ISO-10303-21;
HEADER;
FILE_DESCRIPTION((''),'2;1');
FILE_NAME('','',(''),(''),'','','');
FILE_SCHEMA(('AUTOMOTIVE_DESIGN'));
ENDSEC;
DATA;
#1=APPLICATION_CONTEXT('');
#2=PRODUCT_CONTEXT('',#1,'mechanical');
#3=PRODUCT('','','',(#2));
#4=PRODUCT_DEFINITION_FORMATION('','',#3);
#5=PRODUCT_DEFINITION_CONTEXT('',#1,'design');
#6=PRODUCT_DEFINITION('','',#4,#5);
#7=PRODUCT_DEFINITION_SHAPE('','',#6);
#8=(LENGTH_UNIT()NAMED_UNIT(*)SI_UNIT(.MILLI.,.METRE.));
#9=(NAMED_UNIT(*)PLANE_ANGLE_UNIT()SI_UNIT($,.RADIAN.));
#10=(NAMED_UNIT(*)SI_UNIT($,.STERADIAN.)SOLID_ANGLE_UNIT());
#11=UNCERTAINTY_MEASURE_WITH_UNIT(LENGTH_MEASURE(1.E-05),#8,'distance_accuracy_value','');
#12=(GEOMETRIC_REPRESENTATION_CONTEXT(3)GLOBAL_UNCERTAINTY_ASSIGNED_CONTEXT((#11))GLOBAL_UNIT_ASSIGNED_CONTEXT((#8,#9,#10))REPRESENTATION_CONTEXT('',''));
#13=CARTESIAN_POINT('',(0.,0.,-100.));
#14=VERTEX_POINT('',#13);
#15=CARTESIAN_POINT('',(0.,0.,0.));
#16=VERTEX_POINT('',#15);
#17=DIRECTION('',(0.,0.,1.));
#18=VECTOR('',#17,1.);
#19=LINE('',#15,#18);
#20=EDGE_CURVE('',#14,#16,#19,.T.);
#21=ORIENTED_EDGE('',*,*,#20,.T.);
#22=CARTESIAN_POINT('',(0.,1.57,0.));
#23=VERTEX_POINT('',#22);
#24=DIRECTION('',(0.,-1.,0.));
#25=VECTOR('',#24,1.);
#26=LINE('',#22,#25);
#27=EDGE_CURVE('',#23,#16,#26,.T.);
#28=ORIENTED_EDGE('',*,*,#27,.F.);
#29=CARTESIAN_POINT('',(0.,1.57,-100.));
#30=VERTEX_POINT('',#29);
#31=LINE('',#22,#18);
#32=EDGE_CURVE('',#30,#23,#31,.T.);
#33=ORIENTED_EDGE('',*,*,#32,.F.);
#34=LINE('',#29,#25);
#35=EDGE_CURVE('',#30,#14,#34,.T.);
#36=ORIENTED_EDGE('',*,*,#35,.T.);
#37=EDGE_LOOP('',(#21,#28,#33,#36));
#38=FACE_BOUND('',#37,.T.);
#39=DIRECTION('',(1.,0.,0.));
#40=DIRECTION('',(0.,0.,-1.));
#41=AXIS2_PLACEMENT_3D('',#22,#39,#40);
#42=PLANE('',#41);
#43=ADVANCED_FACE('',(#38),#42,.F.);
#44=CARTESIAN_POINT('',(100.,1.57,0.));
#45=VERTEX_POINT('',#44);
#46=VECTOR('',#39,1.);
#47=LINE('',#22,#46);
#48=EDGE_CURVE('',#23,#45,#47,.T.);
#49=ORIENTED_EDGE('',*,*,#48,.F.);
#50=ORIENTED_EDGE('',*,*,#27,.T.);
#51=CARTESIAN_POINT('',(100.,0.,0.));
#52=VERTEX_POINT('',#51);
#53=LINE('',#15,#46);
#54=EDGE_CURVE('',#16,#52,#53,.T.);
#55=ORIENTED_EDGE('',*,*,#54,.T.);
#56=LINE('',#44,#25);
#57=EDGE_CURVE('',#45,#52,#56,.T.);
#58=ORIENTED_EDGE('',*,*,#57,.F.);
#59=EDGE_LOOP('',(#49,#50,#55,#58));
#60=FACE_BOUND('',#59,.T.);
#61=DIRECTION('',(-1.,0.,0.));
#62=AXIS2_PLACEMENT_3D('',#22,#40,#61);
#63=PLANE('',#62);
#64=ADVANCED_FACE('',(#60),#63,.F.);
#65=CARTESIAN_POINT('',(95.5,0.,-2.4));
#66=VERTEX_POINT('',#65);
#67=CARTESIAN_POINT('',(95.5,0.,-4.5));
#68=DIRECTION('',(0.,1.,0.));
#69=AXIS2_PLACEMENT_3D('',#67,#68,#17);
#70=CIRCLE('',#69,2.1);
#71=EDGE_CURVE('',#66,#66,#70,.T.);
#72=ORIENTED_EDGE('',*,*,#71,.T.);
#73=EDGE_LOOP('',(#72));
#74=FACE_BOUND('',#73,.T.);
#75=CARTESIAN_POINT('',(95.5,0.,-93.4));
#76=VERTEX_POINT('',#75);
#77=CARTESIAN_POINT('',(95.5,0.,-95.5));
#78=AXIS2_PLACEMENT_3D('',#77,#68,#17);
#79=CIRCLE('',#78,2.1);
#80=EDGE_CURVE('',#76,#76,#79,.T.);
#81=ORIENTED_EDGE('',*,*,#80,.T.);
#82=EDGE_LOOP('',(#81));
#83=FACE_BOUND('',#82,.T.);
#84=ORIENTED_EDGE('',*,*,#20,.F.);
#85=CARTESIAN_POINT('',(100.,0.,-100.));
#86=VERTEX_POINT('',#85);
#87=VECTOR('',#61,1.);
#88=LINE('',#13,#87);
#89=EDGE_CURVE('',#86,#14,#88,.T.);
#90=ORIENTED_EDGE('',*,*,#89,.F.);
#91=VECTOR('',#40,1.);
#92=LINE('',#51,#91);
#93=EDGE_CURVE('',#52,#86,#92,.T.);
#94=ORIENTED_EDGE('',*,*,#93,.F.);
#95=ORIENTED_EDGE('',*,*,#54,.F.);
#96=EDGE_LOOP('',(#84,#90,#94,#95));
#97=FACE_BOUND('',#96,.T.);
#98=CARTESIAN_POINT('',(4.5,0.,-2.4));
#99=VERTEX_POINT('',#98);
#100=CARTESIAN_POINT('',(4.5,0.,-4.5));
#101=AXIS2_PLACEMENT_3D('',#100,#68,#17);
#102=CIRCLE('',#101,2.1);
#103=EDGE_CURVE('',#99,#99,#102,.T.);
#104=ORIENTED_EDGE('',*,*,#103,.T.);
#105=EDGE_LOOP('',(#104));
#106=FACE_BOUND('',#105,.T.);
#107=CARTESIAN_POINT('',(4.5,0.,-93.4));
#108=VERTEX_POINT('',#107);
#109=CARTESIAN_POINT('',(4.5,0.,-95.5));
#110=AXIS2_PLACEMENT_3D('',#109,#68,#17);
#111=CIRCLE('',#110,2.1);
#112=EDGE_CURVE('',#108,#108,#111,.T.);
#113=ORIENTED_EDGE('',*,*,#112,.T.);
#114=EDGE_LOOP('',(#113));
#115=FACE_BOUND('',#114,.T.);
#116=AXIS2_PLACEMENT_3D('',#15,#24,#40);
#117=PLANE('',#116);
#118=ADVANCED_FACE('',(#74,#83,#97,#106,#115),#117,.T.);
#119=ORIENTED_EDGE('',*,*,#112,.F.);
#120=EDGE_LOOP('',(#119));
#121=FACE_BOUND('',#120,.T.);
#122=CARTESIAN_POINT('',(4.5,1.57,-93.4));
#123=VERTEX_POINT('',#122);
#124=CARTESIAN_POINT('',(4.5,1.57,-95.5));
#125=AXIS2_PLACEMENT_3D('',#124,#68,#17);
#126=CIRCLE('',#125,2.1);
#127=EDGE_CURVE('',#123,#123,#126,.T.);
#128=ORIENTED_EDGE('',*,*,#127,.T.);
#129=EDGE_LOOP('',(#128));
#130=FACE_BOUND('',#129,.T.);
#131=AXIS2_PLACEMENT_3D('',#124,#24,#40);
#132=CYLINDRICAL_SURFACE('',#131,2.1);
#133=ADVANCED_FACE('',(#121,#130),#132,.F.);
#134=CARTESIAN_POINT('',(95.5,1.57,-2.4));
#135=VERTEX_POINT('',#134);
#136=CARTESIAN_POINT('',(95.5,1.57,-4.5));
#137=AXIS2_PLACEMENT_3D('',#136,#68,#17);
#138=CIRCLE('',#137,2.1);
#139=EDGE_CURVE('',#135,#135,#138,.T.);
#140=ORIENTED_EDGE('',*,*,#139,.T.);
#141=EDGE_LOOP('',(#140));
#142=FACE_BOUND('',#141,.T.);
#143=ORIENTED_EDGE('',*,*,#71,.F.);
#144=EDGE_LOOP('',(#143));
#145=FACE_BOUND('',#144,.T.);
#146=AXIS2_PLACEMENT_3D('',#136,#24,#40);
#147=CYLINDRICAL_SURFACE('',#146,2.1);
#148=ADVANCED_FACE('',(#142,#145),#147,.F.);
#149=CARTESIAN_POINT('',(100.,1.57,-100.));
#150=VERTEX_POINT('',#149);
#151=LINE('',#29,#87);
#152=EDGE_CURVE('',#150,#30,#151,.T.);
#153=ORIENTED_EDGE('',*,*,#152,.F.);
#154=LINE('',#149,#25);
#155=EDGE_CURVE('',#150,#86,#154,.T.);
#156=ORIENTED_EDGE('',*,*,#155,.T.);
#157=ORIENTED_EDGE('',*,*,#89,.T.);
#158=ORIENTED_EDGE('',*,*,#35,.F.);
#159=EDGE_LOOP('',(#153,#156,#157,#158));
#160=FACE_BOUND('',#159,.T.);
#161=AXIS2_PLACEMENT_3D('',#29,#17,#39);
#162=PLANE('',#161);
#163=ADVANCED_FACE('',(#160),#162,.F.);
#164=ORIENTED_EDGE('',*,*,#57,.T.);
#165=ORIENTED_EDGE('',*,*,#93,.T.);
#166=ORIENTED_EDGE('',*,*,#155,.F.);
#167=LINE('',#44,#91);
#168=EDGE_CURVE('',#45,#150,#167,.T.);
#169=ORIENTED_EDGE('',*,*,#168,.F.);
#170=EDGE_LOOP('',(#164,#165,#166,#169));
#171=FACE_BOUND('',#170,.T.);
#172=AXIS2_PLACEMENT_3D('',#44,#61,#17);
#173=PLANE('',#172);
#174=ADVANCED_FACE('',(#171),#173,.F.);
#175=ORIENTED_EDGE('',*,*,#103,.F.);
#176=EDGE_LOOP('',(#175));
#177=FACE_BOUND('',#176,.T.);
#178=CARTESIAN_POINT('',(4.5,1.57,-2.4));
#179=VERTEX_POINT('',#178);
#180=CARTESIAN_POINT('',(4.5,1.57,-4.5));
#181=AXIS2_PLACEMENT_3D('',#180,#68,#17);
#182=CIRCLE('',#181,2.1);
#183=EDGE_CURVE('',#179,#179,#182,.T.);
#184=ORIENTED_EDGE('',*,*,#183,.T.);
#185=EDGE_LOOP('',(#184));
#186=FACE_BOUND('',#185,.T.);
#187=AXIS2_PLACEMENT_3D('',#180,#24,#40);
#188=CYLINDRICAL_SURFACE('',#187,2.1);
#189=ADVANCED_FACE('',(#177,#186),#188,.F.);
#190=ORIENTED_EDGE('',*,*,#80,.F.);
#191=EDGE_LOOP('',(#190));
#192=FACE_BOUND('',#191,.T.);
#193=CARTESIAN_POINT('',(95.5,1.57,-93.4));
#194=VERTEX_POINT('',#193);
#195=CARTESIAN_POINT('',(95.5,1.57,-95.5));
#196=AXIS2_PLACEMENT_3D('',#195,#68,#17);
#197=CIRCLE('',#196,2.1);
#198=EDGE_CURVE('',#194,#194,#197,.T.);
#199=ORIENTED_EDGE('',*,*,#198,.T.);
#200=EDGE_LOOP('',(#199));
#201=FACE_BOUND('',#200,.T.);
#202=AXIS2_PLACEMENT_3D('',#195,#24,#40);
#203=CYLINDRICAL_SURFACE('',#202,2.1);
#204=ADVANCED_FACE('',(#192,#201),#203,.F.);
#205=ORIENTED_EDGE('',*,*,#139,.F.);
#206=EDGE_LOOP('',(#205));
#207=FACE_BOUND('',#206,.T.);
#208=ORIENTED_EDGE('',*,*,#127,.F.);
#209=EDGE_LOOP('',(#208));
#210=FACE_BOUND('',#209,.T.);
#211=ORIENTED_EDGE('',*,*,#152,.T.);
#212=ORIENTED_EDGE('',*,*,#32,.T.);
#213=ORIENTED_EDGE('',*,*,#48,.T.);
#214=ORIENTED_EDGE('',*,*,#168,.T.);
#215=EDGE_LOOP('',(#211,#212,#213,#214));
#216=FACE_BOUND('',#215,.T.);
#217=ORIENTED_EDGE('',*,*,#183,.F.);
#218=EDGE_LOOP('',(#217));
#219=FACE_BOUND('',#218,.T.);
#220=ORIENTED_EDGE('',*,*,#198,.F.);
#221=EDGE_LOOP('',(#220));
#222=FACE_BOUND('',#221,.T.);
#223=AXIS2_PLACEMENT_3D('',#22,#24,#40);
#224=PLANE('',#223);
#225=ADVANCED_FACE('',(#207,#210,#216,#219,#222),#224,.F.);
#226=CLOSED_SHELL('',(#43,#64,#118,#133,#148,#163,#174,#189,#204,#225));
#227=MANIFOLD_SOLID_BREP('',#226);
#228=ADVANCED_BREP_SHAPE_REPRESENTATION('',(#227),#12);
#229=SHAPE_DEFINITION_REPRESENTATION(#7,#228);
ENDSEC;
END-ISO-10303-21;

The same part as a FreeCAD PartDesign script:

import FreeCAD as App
import Part
import Sketcher
from FreeCAD import Vector
Q = App.Units.Quantity

doc = App.newDocument("Part")
body = doc.addObject("PartDesign::Body", "Body")

# Sketch on XZ plane
sketch1 = body.newObject("Sketcher::SketchObject", "Sketch")
sketch1.AttachmentSupport = (doc.getObject("XZ_Plane"), [""])
sketch1.MapMode = "FlatFace"
sketch1.addGeometry(Part.LineSegment(Vector(0, -100, 0), Vector(0, 0, 0)), False)
sketch1.addGeometry(Part.LineSegment(Vector(0, 0, 0), Vector(100, 0, 0)), False)
sketch1.addGeometry(Part.LineSegment(Vector(100, 0, 0), Vector(100, -100, 0)), False)
sketch1.addGeometry(Part.LineSegment(Vector(100, -100, 0), Vector(0, -100, 0)), False)
sketch1.addGeometry(Part.Circle(Vector(4.5, -4.5, 0), Vector(0, 0, 1), 2.1), False)
sketch1.addGeometry(Part.Circle(Vector(95.5, -4.5, 0), Vector(0, 0, 1), 2.1), False)
sketch1.addGeometry(Part.Circle(Vector(4.5, -95.5, 0), Vector(0, 0, 1), 2.1), False)
sketch1.addGeometry(Part.Circle(Vector(95.5, -95.5, 0), Vector(0, 0, 1), 2.1), False)
sketch1.addConstraint(Sketcher.Constraint("Coincident", 0, 2, 1, 1))
sketch1.addConstraint(Sketcher.Constraint("Coincident", 1, 2, 2, 1))
sketch1.addConstraint(Sketcher.Constraint("Coincident", 2, 2, 3, 1))
sketch1.addConstraint(Sketcher.Constraint("Coincident", 3, 2, 0, 1))
sketch1.addConstraint(Sketcher.Constraint("Vertical", 0))
sketch1.addConstraint(Sketcher.Constraint("Horizontal", 1))
sketch1.addConstraint(Sketcher.Constraint("Vertical", 2))
sketch1.addConstraint(Sketcher.Constraint("Horizontal", 3))
sketch1.addConstraint(Sketcher.Constraint("Coincident", 0, 2, -1, 1))
sketch1.addConstraint(Sketcher.Constraint("Equal", 4, 5))
sketch1.addConstraint(Sketcher.Constraint("Equal", 5, 6))
sketch1.addConstraint(Sketcher.Constraint("Equal", 6, 7))
sketch1.addConstraint(Sketcher.Constraint("Horizontal", 4, 3, 5, 3))
sketch1.addConstraint(Sketcher.Constraint("Horizontal", 6, 3, 7, 3))
sketch1.addConstraint(Sketcher.Constraint("Vertical", 4, 3, 6, 3))
sketch1.addConstraint(Sketcher.Constraint("Vertical", 5, 3, 7, 3))
sketch1.addConstraint(Sketcher.Constraint("Equal", 3, 0))
sketch1.addConstraint(Sketcher.Constraint("Diameter", 4, Q("4.2 mm")))
sketch1.addConstraint(Sketcher.Constraint("DistanceX", 1, 1, 1, 2, Q("100 mm")))
sketch1.addConstraint(Sketcher.Constraint("DistanceX", 4, 3, 5, 3, Q("91 mm")))
sketch1.addConstraint(Sketcher.Constraint("DistanceY", 6, 3, 4, 3, Q("91 mm")))
sketch1.addConstraint(Sketcher.Constraint("DistanceX", -1, 1, 4, 3, Q("4.5 mm")))
sketch1.addConstraint(Sketcher.Constraint("DistanceY", 4, 3, -1, 1, Q("4.5 mm")))
pad1 = body.newObject("PartDesign::Pad", "Pad")
pad1.Profile = sketch1
pad1.Length = 1.57
pad1.Reversed = True

doc.recompute()
